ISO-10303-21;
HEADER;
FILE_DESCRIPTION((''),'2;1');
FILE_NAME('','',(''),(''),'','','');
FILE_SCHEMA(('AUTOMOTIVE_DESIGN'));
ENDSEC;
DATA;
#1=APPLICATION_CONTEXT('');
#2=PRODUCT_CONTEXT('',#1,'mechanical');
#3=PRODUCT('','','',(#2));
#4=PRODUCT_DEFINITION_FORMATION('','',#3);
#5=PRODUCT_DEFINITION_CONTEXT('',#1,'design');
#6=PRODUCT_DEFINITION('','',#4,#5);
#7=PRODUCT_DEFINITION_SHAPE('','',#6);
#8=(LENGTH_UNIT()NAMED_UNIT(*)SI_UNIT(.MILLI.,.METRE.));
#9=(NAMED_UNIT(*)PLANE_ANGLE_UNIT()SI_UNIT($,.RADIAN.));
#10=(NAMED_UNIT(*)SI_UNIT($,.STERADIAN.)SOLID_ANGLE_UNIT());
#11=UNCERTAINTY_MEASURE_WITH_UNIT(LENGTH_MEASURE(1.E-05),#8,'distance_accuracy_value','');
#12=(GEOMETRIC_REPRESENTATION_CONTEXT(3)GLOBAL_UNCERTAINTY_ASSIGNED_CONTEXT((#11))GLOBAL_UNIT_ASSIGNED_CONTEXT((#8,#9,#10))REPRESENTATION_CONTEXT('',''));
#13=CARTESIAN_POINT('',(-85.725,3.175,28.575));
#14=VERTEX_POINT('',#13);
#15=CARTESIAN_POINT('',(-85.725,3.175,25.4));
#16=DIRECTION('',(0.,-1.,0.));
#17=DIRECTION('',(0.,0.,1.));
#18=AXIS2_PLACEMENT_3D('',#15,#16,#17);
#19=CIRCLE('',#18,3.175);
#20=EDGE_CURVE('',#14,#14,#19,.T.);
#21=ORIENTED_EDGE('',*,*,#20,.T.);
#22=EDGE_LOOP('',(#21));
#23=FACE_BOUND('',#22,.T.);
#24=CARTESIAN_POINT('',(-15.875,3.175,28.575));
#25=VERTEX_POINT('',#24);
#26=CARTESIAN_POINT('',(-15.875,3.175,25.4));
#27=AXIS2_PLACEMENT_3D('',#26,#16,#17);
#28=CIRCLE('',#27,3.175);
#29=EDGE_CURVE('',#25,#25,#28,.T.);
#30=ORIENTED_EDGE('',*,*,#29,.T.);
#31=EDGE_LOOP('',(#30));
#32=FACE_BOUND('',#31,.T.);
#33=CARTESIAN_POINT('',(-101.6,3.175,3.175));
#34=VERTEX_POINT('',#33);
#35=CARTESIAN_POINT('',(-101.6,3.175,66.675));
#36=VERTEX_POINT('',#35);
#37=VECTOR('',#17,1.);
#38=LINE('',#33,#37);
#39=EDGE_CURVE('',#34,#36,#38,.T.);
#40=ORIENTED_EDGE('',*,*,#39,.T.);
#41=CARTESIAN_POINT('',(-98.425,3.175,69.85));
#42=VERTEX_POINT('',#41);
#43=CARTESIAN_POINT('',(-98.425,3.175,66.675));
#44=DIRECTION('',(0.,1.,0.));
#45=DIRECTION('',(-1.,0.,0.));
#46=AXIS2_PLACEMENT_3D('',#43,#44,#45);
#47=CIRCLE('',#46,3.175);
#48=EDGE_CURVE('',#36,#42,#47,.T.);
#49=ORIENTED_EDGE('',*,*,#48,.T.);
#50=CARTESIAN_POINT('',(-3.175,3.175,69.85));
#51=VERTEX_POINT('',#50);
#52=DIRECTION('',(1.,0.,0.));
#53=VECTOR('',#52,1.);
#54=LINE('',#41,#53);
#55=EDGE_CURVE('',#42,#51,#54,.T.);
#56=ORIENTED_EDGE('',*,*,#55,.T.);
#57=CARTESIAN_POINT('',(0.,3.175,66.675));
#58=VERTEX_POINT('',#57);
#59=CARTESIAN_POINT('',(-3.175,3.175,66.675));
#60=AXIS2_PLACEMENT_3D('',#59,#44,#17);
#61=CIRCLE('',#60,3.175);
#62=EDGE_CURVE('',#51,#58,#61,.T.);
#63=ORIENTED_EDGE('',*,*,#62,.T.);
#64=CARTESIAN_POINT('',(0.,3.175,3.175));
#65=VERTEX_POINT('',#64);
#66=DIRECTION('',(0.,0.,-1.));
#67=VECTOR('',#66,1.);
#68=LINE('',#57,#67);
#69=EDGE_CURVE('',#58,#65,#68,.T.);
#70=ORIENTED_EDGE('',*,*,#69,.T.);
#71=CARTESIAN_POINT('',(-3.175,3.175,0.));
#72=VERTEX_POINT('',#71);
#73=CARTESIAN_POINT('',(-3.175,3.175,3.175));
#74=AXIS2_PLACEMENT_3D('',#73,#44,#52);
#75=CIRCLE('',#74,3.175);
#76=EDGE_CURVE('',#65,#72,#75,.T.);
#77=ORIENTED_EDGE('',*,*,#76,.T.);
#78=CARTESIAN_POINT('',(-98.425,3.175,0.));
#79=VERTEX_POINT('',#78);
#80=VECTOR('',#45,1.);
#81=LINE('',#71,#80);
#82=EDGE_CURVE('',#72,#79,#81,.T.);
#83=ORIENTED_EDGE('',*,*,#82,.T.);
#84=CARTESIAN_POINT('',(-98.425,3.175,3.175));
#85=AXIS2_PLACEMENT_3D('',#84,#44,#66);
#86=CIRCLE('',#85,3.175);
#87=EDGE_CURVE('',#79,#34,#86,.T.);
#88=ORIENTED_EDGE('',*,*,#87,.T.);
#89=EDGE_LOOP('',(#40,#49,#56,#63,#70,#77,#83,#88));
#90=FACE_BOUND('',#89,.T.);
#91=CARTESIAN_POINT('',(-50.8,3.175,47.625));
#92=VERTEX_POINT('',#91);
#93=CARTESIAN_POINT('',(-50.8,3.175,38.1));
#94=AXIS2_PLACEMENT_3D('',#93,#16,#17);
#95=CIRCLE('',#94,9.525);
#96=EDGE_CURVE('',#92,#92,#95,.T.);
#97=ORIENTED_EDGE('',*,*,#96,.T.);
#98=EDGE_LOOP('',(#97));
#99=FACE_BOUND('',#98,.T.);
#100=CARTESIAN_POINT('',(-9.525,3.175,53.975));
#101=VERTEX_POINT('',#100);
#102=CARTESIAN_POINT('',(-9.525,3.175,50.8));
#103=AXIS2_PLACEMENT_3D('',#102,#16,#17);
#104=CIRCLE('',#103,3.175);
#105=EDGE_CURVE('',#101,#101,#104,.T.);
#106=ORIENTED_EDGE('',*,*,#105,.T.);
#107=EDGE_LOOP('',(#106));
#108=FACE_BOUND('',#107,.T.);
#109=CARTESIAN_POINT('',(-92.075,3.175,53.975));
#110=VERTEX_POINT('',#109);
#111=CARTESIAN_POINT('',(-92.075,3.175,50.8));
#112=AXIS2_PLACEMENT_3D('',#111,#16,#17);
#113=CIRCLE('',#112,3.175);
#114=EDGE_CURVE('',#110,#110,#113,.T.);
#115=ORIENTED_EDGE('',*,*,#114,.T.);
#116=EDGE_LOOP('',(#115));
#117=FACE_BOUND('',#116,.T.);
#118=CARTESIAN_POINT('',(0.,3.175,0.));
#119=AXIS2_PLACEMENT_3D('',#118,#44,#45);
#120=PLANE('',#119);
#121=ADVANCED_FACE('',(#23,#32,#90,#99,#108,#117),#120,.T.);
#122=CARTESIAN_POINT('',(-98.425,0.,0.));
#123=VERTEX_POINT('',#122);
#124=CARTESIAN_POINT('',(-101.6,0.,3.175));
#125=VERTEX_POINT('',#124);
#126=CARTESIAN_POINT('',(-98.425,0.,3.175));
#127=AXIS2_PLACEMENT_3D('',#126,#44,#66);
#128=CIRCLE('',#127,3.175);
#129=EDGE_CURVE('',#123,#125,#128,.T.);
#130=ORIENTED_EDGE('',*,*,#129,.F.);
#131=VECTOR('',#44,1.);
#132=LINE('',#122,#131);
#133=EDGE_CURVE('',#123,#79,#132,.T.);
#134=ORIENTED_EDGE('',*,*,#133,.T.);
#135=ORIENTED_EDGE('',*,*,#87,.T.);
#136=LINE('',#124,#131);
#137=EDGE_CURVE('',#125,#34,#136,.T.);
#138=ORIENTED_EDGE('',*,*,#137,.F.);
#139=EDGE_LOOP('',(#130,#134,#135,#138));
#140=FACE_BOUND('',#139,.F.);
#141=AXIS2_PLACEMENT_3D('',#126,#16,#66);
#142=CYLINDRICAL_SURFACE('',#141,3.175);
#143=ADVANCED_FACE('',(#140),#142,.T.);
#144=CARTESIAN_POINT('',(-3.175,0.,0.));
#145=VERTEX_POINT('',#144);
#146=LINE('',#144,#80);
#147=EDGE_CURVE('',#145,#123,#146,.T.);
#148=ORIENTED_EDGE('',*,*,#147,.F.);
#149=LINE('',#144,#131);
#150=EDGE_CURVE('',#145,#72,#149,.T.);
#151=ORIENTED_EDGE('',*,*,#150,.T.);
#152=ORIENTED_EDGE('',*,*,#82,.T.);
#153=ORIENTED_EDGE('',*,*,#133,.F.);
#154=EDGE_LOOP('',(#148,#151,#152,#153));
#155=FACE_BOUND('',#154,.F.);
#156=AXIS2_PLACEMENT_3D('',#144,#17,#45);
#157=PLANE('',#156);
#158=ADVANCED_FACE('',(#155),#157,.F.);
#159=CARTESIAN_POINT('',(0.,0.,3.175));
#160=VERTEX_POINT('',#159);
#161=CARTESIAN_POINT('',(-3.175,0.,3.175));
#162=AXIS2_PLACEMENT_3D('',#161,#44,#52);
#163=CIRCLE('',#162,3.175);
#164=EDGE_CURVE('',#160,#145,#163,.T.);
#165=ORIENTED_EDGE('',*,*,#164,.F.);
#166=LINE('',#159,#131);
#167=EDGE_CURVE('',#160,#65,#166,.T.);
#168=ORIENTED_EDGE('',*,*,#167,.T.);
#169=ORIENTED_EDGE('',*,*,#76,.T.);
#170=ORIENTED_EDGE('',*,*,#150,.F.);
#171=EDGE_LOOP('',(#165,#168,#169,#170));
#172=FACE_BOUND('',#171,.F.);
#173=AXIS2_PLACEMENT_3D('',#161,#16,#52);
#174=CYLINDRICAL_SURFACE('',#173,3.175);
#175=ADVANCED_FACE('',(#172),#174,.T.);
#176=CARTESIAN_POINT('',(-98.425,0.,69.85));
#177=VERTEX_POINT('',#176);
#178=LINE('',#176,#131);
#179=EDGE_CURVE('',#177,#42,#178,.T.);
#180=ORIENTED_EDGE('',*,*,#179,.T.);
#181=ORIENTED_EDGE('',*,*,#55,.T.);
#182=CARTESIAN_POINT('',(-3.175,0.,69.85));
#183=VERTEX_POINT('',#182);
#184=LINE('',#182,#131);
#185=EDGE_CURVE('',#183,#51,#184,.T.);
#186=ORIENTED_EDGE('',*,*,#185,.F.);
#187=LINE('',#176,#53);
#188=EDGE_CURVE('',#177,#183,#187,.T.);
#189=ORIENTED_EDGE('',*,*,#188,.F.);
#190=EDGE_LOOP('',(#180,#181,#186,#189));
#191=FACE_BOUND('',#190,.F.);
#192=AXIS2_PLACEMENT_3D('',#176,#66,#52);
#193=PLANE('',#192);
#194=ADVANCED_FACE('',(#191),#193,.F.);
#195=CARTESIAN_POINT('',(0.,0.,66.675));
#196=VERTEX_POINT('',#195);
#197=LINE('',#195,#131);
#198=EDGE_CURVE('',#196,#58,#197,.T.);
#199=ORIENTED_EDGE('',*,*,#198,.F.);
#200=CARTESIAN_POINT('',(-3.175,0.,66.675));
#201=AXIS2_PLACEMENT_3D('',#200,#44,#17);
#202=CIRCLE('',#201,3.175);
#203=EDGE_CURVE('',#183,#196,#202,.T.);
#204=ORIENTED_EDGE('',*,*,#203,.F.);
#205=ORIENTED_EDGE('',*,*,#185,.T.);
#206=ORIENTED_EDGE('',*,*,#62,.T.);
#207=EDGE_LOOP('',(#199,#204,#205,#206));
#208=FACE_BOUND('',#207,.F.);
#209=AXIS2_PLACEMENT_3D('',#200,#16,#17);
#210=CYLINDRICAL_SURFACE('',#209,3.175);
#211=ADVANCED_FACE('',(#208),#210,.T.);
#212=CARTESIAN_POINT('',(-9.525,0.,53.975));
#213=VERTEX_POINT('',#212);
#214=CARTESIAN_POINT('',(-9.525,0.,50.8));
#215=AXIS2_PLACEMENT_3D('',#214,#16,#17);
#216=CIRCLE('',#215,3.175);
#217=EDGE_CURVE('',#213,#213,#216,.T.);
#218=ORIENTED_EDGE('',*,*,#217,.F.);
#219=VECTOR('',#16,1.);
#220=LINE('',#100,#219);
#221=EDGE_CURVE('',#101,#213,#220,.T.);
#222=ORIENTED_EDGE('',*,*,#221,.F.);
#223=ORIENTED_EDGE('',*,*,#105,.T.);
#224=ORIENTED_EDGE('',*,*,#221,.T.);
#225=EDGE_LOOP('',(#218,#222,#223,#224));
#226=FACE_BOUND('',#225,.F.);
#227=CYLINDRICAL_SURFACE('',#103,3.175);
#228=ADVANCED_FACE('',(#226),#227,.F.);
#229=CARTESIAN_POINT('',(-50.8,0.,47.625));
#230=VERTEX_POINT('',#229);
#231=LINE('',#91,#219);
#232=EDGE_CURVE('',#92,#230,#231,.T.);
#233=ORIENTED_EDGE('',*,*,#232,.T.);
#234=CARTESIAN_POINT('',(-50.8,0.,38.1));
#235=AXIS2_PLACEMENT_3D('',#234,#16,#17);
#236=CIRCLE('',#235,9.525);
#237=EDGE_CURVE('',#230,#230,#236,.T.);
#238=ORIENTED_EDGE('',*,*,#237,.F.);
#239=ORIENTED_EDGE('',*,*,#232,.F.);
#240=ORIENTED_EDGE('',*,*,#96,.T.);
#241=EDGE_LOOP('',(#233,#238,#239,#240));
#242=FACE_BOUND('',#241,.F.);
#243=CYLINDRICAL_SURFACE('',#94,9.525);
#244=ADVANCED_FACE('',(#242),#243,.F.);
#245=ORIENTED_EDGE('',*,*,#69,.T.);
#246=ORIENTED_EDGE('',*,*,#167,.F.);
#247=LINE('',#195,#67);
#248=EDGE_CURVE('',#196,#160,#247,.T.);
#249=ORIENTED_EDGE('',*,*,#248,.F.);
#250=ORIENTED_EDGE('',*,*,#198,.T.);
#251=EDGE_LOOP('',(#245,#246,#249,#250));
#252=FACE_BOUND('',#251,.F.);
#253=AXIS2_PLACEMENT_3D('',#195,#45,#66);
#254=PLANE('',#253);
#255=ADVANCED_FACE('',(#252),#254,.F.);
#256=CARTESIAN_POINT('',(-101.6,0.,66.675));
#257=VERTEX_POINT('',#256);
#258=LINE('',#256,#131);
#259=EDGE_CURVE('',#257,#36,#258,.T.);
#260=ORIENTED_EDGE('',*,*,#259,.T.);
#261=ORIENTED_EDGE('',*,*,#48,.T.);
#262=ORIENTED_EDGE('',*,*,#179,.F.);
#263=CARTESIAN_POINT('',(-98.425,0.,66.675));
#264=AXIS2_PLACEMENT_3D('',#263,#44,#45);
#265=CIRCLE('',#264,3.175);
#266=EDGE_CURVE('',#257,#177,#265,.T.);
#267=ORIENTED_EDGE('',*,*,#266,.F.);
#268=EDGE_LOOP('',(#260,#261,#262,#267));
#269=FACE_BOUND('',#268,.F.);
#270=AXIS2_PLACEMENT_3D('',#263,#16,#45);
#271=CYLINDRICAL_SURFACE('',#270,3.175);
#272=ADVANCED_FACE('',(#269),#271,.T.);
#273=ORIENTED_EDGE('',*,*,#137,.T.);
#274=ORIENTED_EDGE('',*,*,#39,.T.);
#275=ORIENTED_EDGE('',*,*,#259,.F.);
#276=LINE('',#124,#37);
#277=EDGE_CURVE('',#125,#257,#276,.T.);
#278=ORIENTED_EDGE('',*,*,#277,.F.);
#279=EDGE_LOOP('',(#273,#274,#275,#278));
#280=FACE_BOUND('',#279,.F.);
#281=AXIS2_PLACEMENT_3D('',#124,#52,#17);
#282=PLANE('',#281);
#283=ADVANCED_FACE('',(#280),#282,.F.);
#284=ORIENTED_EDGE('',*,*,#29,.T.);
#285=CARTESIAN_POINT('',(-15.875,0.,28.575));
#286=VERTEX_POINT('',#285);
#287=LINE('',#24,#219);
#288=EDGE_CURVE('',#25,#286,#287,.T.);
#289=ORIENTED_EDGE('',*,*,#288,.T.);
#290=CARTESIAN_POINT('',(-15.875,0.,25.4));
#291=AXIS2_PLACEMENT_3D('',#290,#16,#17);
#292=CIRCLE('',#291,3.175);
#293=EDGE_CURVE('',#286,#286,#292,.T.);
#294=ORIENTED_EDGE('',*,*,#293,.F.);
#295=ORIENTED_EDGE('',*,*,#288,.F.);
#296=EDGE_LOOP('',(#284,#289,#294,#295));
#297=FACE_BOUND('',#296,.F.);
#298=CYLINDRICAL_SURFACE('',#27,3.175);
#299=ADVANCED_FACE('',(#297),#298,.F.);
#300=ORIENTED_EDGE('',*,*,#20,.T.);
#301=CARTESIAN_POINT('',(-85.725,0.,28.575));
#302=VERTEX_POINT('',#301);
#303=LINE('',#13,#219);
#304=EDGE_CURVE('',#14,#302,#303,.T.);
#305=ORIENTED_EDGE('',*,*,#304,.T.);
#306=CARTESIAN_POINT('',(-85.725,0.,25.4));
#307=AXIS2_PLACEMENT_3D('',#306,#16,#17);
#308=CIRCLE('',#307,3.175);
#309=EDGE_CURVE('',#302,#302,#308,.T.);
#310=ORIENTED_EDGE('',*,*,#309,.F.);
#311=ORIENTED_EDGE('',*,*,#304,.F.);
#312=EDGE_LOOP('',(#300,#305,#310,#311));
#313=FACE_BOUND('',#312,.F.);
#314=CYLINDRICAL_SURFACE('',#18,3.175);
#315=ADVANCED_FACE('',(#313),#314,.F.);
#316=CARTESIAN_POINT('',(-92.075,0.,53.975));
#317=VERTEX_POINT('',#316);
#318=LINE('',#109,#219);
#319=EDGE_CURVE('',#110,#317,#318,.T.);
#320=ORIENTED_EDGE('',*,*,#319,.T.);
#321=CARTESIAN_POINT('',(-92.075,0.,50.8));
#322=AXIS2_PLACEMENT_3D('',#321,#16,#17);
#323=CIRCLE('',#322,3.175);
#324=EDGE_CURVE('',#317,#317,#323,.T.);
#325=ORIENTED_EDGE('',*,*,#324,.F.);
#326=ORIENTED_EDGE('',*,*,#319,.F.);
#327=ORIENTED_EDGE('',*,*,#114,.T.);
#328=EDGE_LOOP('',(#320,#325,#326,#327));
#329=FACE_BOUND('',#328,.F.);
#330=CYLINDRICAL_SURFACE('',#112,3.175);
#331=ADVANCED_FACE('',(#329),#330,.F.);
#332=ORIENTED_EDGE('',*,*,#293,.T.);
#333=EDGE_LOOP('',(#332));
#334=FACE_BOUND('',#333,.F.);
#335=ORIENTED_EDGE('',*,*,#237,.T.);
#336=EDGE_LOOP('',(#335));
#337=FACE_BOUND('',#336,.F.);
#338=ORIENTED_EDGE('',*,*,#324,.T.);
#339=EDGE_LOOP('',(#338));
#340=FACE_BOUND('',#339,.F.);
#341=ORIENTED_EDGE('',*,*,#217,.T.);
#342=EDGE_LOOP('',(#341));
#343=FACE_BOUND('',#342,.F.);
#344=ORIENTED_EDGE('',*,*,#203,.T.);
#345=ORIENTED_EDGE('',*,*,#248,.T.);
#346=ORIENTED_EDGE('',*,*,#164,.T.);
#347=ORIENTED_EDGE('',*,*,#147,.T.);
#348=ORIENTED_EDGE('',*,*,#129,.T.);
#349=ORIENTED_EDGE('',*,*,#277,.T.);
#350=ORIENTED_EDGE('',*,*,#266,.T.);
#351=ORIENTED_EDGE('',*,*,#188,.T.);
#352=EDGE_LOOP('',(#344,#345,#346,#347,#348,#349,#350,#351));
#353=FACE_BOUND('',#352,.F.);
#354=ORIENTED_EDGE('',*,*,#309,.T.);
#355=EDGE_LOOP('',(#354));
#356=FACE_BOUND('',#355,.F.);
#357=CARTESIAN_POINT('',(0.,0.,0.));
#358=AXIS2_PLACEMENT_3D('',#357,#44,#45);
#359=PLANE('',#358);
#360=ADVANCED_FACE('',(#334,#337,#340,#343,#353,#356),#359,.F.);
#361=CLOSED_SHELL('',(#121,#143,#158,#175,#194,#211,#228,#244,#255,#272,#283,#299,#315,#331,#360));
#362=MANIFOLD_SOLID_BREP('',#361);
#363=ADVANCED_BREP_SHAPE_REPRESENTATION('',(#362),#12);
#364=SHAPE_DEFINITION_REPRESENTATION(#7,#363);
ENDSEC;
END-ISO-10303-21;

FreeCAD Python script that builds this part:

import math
import FreeCAD as App
import Part
import Sketcher
Q = App.Units.Quantity

doc = App.newDocument("Part")
body = doc.addObject("PartDesign::Body", "Body")

sketch1 = body.newObject("Sketcher::SketchObject", "Sketch")
sketch1.AttachmentSupport = (doc.getObject("XZ_Plane"), [""])
sketch1.MapMode = "FlatFace"
sketch1.addGeometry([
    Part.ArcOfCircle(Part.Circle(App.Vector(-3.175, 3.175, 0), App.Vector(0, 0, 1), 3.175), math.radians(-90), math.radians(0)),
    Part.LineSegment(App.Vector(-3.175, 0, 0), App.Vector(-98.425, 0, 0)),
    Part.ArcOfCircle(Part.Circle(App.Vector(-98.425, 3.175, 0), App.Vector(0, 0, 1), 3.175), math.radians(180), math.radians(270)),
    Part.LineSegment(App.Vector(-101.6, 3.175, 0), App.Vector(-101.6, 66.675, 0)),
    Part.ArcOfCircle(Part.Circle(App.Vector(-98.425, 66.675, 0), App.Vector(0, 0, 1), 3.175), math.radians(90), math.radians(180)),
    Part.LineSegment(App.Vector(-98.425, 69.85, 0), App.Vector(-3.175, 69.85, 0)),
    Part.ArcOfCircle(Part.Circle(App.Vector(-3.175, 66.675, 0), App.Vector(0, 0, 1), 3.175), math.radians(0), math.radians(90)),
    Part.LineSegment(App.Vector(0, 66.675, 0), App.Vector(0, 3.175, 0)),
], False)
sketch1.addConstraint([
    Sketcher.Constraint("Tangent", 0, 1, 1, 1),
    Sketcher.Constraint("Tangent", 1, 2, 2, 2),
    Sketcher.Constraint("Tangent", 2, 1, 3, 1),
    Sketcher.Constraint("Tangent", 3, 2, 4, 2),
    Sketcher.Constraint("Tangent", 4, 1, 5, 1),
    Sketcher.Constraint("Tangent", 5, 2, 6, 2),
    Sketcher.Constraint("Tangent", 6, 1, 7, 1),
    Sketcher.Constraint("Tangent", 7, 2, 0, 2),
    Sketcher.Constraint("Horizontal", 1),
    Sketcher.Constraint("Vertical", 3),
    Sketcher.Constraint("Horizontal", 5),
    Sketcher.Constraint("Vertical", 7),
    Sketcher.Constraint("Equal", 0, 2),
    Sketcher.Constraint("Equal", 2, 4),
    Sketcher.Constraint("Equal", 4, 6),
    Sketcher.Constraint("PointOnObject", 0, 1, -1),
    Sketcher.Constraint("PointOnObject", 6, 1, -2),
    Sketcher.Constraint("DistanceX", 2, 1, -1, 1, Q("4 in")),
    Sketcher.Constraint("Radius", 0, Q("0.125 in")),
    Sketcher.Constraint("DistanceY", -1, 1, 4, 1, Q("2.75 in")),
])
pad1 = body.newObject("PartDesign::Pad", "Pad")
pad1.Profile = sketch1
pad1.Length = Q("0.125 in")
pad1.Reversed = True

sketch2 = body.newObject("Sketcher::SketchObject", "Sketch001")
sketch2.AttachmentSupport = (doc.getObject("XZ_Plane"), [""])
sketch2.MapMode = "FlatFace"
sketch2.AttachmentOffset = App.Placement(App.Vector(0, 0, -0.125 * 25.4), App.Rotation())
sketch2.addGeometry(Part.Circle(App.Vector(-50.8, 38.1, 0), App.Vector(0, 0, 1), 9.525), False)
sketch2.addConstraint([
    Sketcher.Constraint("Diameter", 0, Q("0.75 in")),
    Sketcher.Constraint("DistanceX", 0, 3, -1, 1, Q("2 in")),
    Sketcher.Constraint("DistanceY", -1, 1, 0, 3, Q("1.5 in")),
])
doc.recompute()
hole = body.newObject("PartDesign::Hole", "Hole")
hole.Profile = sketch2
hole.ThreadType = "None"
hole.Diameter = Q("0.75 in")
hole.DepthType = "ThroughAll"
hole.Reversed = True

sketch3 = body.newObject("Sketcher::SketchObject", "Sketch002")
sketch3.AttachmentSupport = (doc.getObject("XZ_Plane"), [""])
sketch3.MapMode = "FlatFace"
sketch3.AttachmentOffset = App.Placement(App.Vector(0, 0, -0.125 * 25.4), App.Rotation())
sketch3.addGeometry([
    Part.Circle(App.Vector(-85.725, 25.4, 0), App.Vector(0, 0, 1), 3.175),
    Part.Circle(App.Vector(-15.875, 25.4, 0), App.Vector(0, 0, 1), 3.175),
    Part.Circle(App.Vector(-9.525, 50.8, 0), App.Vector(0, 0, 1), 3.175),
    Part.Circle(App.Vector(-92.075, 50.8, 0), App.Vector(0, 0, 1), 3.175),
], False)
sketch3.addConstraint([
    Sketcher.Constraint("Equal", 0, 1),
    Sketcher.Constraint("Equal", 1, 2),
    Sketcher.Constraint("Equal", 2, 3),
    Sketcher.Constraint("Horizontal", 0, 3, 1, 3),
    Sketcher.Constraint("Horizontal", 2, 3, 3, 3),
    Sketcher.Constraint("Diameter", 0, Q("0.25 in")),
    Sketcher.Constraint("DistanceY", -1, 1, 0, 3, Q("1 in")),
    Sketcher.Constraint("DistanceY", -1, 1, 2, 3, Q("2 in")),
    Sketcher.Constraint("DistanceX", 0, 3, 2, 3, Q("3 in")),
    Sketcher.Constraint("DistanceX", 3, 3, 1, 3, Q("3 in")),
    Sketcher.Constraint("DistanceX", 0, 3, 1, 3, Q("2.75 in")),
    Sketcher.Constraint("DistanceX", 0, 3, -1, 1, Q("3.375 in")),
])
doc.recompute()
hole2 = body.newObject("PartDesign::Hole", "Hole001")
hole2.Profile = sketch3
hole2.ThreadType = "None"
hole2.Diameter = Q("0.25 in")
hole2.DepthType = "ThroughAll"
hole2.Reversed = True

doc.recompute()
